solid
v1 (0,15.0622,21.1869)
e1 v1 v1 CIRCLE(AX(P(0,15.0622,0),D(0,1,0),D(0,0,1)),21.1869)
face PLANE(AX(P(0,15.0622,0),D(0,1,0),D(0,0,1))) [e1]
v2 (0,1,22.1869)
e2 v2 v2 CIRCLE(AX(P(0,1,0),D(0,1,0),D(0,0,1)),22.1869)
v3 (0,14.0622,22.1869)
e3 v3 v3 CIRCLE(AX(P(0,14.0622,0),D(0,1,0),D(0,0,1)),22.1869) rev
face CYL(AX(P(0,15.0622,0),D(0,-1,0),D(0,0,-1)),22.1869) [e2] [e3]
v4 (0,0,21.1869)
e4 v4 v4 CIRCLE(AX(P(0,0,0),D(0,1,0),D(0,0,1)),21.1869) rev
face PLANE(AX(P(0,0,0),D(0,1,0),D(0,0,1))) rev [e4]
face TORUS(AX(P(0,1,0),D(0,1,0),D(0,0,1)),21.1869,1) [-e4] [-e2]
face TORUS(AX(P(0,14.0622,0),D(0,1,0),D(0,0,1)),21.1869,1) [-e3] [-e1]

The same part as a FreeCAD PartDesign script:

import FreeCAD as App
import Part
import Sketcher
Q = App.Units.Quantity


def edges_at(feature, points):
    """Names of the edges that pass closest to the given points."""
    edges = feature.Shape.Edges
    near = lambda p: min(range(len(edges)), key=lambda i: edges[i].distToShape(Part.Vertex(*p))[0])
    return sorted({f"Edge{near(p) + 1}" for p in points})

doc = App.newDocument("Part")
body = doc.addObject("PartDesign::Body", "Body")

sketch1 = doc.addObject("Sketcher::SketchObject", "Sketch")
body.addObject(sketch1)
sketch1.AttachmentSupport = (doc.XZ_Plane, [""])
sketch1.MapMode = "FlatFace"
sketch1.addGeometry(Part.Circle(App.Vector(0, 0, 0), App.Vector(0, 0, 1), 22), False)
sketch1.addConstraint([
    Sketcher.Constraint("Coincident", 0, 3, -1, 1),
    Sketcher.Constraint("Diameter", 0, Q("1.747 in")),
])
pad1 = doc.addObject("PartDesign::Pad", "Pad")
body.addObject(pad1)
pad1.Profile = sketch1
pad1.Length = Q("0.593 in")
pad1.Reversed = True
doc.recompute()

fillet = doc.addObject("PartDesign::Fillet", "Fillet")
body.addObject(fillet)
fillet.Base = (pad1, edges_at(pad1, [(0, 0, -22.187), (0, 15.062, -22.187)]))
fillet.Radius = 1

doc.recompute()
